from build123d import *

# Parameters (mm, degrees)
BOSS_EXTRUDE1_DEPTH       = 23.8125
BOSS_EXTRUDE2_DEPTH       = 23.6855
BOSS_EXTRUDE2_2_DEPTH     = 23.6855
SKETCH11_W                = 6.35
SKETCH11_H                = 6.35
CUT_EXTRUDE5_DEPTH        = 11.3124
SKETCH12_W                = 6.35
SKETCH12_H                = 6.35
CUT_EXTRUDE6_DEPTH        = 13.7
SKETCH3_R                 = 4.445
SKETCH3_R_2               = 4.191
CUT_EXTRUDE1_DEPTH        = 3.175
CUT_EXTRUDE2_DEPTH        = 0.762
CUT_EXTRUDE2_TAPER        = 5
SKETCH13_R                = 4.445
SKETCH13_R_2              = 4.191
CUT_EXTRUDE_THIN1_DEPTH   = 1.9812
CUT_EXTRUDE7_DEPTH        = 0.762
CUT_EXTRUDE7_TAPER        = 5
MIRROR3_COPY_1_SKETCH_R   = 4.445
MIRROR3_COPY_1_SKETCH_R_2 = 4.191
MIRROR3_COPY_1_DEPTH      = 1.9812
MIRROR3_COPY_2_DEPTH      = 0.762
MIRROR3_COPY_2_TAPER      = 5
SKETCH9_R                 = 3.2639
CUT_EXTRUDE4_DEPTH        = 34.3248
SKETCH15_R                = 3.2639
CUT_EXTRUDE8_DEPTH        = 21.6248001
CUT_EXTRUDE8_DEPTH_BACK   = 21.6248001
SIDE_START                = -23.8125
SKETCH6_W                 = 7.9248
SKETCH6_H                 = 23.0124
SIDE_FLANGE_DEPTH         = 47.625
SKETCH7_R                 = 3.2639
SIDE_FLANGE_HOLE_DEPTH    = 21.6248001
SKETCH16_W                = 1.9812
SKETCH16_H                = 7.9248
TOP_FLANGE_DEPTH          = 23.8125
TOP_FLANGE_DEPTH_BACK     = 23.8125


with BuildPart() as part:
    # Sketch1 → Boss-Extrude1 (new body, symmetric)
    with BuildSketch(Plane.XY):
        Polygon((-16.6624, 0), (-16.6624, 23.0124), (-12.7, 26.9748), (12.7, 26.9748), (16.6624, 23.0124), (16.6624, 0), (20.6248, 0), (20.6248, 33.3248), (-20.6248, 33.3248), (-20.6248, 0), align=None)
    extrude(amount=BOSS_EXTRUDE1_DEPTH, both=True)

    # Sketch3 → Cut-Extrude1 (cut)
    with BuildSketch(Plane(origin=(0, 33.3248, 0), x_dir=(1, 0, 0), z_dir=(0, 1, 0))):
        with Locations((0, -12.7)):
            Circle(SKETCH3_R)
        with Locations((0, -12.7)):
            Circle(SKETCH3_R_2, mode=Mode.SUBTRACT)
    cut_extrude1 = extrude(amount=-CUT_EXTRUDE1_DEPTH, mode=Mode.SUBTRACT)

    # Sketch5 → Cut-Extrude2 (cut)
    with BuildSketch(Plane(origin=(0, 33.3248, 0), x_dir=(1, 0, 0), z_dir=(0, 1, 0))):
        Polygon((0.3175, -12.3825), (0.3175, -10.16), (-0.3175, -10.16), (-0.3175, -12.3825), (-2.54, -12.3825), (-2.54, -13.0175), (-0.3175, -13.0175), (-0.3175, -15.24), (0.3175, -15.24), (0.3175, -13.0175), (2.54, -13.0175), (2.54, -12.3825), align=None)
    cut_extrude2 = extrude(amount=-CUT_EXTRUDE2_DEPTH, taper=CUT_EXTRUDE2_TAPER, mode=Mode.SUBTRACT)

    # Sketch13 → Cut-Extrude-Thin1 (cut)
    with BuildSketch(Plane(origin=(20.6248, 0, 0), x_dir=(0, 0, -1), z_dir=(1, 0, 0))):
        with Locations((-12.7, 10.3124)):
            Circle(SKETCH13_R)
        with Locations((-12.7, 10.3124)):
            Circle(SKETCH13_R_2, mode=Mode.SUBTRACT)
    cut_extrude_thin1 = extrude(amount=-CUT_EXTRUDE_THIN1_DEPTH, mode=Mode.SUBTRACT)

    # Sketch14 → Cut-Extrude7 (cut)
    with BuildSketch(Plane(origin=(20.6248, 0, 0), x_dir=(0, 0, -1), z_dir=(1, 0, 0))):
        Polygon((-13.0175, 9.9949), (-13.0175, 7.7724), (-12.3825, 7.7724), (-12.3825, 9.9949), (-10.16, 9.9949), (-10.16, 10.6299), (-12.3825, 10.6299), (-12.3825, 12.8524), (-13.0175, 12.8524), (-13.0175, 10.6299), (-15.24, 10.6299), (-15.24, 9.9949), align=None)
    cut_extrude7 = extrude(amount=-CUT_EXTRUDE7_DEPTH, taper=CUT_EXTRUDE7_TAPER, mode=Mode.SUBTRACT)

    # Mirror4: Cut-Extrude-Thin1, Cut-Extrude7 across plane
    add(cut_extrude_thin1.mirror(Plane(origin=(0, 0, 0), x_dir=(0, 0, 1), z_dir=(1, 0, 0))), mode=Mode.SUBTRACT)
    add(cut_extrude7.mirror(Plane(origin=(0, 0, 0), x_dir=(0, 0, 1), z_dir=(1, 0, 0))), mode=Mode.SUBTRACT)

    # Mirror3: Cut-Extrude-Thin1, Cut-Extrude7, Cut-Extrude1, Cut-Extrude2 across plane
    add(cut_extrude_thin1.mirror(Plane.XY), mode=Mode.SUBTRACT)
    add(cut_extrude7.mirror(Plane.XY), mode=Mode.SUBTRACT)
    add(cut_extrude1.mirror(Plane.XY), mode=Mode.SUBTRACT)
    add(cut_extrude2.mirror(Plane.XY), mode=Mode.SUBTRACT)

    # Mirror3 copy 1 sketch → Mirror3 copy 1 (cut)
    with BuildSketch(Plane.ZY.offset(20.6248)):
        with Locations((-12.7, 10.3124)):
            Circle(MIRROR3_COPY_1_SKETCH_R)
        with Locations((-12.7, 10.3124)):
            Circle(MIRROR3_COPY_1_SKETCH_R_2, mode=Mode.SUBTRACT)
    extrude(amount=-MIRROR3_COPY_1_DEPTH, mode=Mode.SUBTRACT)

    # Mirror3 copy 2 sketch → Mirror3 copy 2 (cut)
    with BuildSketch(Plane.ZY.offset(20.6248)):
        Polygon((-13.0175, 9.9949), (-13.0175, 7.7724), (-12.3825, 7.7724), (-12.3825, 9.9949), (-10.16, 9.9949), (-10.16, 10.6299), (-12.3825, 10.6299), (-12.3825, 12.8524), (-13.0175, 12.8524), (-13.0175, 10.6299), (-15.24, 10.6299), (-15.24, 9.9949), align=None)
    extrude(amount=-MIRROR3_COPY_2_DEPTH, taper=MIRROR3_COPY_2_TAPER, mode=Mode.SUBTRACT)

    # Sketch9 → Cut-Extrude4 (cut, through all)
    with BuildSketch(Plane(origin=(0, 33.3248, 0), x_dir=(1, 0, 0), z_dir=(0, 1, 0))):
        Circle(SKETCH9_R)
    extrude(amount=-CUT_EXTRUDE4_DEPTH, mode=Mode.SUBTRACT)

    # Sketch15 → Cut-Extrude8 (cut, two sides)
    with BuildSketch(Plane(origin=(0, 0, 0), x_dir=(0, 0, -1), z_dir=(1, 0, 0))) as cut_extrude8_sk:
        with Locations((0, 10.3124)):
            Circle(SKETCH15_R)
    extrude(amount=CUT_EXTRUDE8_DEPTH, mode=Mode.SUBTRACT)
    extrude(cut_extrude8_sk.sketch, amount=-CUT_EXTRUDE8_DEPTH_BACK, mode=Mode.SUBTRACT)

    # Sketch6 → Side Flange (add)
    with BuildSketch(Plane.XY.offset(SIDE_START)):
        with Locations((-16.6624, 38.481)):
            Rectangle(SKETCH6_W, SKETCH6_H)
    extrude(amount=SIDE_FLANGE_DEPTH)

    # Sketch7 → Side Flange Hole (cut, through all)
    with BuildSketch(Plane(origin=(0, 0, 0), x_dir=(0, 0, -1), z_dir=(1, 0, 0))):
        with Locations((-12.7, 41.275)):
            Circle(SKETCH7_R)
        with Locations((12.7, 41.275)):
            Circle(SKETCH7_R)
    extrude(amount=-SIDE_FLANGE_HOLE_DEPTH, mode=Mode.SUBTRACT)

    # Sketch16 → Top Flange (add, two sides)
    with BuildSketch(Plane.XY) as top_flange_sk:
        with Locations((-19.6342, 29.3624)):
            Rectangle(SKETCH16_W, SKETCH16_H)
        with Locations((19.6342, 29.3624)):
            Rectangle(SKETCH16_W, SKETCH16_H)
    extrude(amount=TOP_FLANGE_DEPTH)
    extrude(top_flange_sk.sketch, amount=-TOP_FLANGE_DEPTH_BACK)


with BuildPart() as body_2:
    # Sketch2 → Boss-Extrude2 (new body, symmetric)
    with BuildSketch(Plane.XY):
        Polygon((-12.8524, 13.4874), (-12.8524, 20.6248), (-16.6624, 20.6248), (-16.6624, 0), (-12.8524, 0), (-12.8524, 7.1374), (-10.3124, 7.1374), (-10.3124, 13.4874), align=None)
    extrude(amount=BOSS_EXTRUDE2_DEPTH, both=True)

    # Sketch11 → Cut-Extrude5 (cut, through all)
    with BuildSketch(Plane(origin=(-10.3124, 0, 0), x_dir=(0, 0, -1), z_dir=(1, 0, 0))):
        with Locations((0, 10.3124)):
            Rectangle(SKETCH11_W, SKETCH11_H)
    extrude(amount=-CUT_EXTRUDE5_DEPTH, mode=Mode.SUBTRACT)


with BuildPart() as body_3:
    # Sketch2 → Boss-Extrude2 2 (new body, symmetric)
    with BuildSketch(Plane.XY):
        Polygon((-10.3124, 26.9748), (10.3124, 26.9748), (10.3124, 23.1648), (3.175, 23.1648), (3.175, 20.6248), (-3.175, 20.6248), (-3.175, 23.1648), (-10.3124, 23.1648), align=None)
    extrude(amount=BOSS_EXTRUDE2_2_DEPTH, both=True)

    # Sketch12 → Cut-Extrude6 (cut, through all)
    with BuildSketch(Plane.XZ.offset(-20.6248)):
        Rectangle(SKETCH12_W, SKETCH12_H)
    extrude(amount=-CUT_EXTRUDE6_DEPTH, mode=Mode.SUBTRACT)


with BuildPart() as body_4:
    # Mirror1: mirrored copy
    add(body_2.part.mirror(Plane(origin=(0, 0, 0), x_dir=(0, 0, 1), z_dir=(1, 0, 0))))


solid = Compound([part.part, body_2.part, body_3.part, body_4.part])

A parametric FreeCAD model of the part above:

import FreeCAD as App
import Part
import Sketcher

V = App.Vector
Q = App.Units.Quantity

doc = App.newDocument("Part")
body = doc.addObject("PartDesign::Body", "Body")

sketch1 = body.newObject("Sketcher::SketchObject", "Sketch")
sketch1.AttachmentSupport = (doc.getObject("XY_Plane"), [""])
sketch1.MapMode = "FlatFace"
sketch1.addGeometry([
    Part.LineSegment(V(-16.6624, 0, 0), V(-16.6624, 23.0124, 0)),
    Part.LineSegment(V(-16.6624, 23.0124, 0), V(-12.7, 26.9748, 0)),
    Part.LineSegment(V(-12.7, 26.9748, 0), V(12.7, 26.9748, 0)),
    Part.LineSegment(V(12.7, 26.9748, 0), V(16.6624, 23.0124, 0)),
    Part.LineSegment(V(16.6624, 23.0124, 0), V(16.6624, 0, 0)),
    Part.LineSegment(V(16.6624, 0, 0), V(20.6248, 0, 0)),
    Part.LineSegment(V(20.6248, 0, 0), V(20.6248, 33.3248, 0)),
    Part.LineSegment(V(20.6248, 33.3248, 0), V(-20.6248, 33.3248, 0)),
    Part.LineSegment(V(-20.6248, 33.3248, 0), V(-20.6248, 0, 0)),
    Part.LineSegment(V(-20.6248, 0, 0), V(-16.6624, 0, 0)),
], False)
sketch1.addConstraint([
    Sketcher.Constraint("Coincident", 0, 2, 1, 1),
    Sketcher.Constraint("Coincident", 1, 2, 2, 1),
    Sketcher.Constraint("Coincident", 2, 2, 3, 1),
    Sketcher.Constraint("Coincident", 3, 2, 4, 1),
    Sketcher.Constraint("Coincident", 4, 2, 5, 1),
    Sketcher.Constraint("Coincident", 5, 2, 6, 1),
    Sketcher.Constraint("Coincident", 6, 2, 7, 1),
    Sketcher.Constraint("Coincident", 7, 2, 8, 1),
    Sketcher.Constraint("Coincident", 8, 2, 9, 1),
    Sketcher.Constraint("Coincident", 9, 2, 0, 1),
    Sketcher.Constraint("Vertical", 0),
    Sketcher.Constraint("Horizontal", 2),
    Sketcher.Constraint("Vertical", 4),
    Sketcher.Constraint("Horizontal", 5),
    Sketcher.Constraint("Vertical", 6),
    Sketcher.Constraint("Horizontal", 7),
    Sketcher.Constraint("Vertical", 8),
    Sketcher.Constraint("Horizontal", 9),
    Sketcher.Constraint("Symmetric", 5, 2, 8, 2, -1, 1),
    Sketcher.Constraint("Symmetric", 0, 2, 3, 2, -2),
    Sketcher.Constraint("PointOnObject", 4, 2, -1),
    Sketcher.Constraint("Perpendicular", 1, 3),
    Sketcher.Constraint("Equal", 1, 3),
    Sketcher.Constraint("DistanceX", 2, 1, 2, 2, Q("1 in")),
    Sketcher.Constraint("DistanceX", 5, 1, 5, 2, Q("0.156 in")),
    Sketcher.Constraint("DistanceX", 7, 2, 7, 1, Q("1.624 in")),
    Sketcher.Constraint("DistanceY", 0, 1, 0, 2, Q("0.906 in")),
    Sketcher.Constraint("DistanceY", 6, 1, 6, 2, Q("1.312 in")),
])
pad1 = body.newObject("PartDesign::Pad", "Pad")
pad1.Profile = sketch1
pad1.Length = Q("1.875 in")
pad1.Midplane = True

sketch2 = body.newObject("Sketcher::SketchObject", "Sketch001")
sketch2.AttachmentSupport = (doc.getObject("XZ_Plane"), [""])
sketch2.MapMode = "FlatFace"
sketch2.AttachmentOffset = App.Placement(V(0, 0, -1.312 * 25.4), App.Rotation())
sketch2.addGeometry([
    Part.Circle(V(0, 12.7, 0), V(0, 0, 1), 4.445),
    Part.Circle(V(0, 12.7, 0), V(0, 0, 1), 4.191),
], False)
sketch2.addConstraint([
    Sketcher.Constraint("Coincident", 1, 3, 0, 3),
    Sketcher.Constraint("PointOnObject", 0, 3, -2),
    Sketcher.Constraint("Diameter", 0, Q("0.35 in")),
    Sketcher.Constraint("Diameter", 1, Q("0.33 in")),
    Sketcher.Constraint("DistanceY", -1, 1, 0, 3, Q("0.5 in")),
])
pocket1 = body.newObject("PartDesign::Pocket", "Pocket")
pocket1.Profile = sketch2
pocket1.Length = Q("0.125 in")
pocket1.Reversed = True

sketch3 = body.newObject("Sketcher::SketchObject", "Sketch002")
sketch3.AttachmentSupport = (doc.getObject("XZ_Plane"), [""])
sketch3.MapMode = "FlatFace"
sketch3.AttachmentOffset = App.Placement(V(0, 0, -1.312 * 25.4), App.Rotation())
sketch3.addGeometry([
    Part.LineSegment(V(0.3175, 12.3825, 0), V(0.3175, 10.16, 0)),
    Part.LineSegment(V(0.3175, 10.16, 0), V(-0.3175, 10.16, 0)),
    Part.LineSegment(V(-0.3175, 10.16, 0), V(-0.3175, 12.3825, 0)),
    Part.LineSegment(V(-0.3175, 12.3825, 0), V(-2.54, 12.3825, 0)),
    Part.LineSegment(V(-2.54, 12.3825, 0), V(-2.54, 13.0175, 0)),
    Part.LineSegment(V(-2.54, 13.0175, 0), V(-0.3175, 13.0175, 0)),
    Part.LineSegment(V(-0.3175, 13.0175, 0), V(-0.3175, 15.24, 0)),
    Part.LineSegment(V(-0.3175, 15.24, 0), V(0.3175, 15.24, 0)),
    Part.LineSegment(V(0.3175, 15.24, 0), V(0.3175, 13.0175, 0)),
    Part.LineSegment(V(0.3175, 13.0175, 0), V(2.54, 13.0175, 0)),
    Part.LineSegment(V(2.54, 13.0175, 0), V(2.54, 12.3825, 0)),
    Part.LineSegment(V(2.54, 12.3825, 0), V(0.3175, 12.3825, 0)),
], False)
sketch3.addConstraint([
    Sketcher.Constraint("Coincident", 0, 2, 1, 1),
    Sketcher.Constraint("Coincident", 1, 2, 2, 1),
    Sketcher.Constraint("Coincident", 2, 2, 3, 1),
    Sketcher.Constraint("Coincident", 3, 2, 4, 1),
    Sketcher.Constraint("Coincident", 4, 2, 5, 1),
    Sketcher.Constraint("Coincident", 5, 2, 6, 1),
    Sketcher.Constraint("Coincident", 6, 2, 7, 1),
    Sketcher.Constraint("Coincident", 7, 2, 8, 1),
    Sketcher.Constraint("Coincident", 8, 2, 9, 1),
    Sketcher.Constraint("Coincident", 9, 2, 10, 1),
    Sketcher.Constraint("Coincident", 10, 2, 11, 1),
    Sketcher.Constraint("Coincident", 11, 2, 0, 1),
    Sketcher.Constraint("Vertical", 0),
    Sketcher.Constraint("Horizontal", 1),
    Sketcher.Constraint("Vertical", 2),
    Sketcher.Constraint("Horizontal", 3),
    Sketcher.Constraint("Vertical", 4),
    Sketcher.Constraint("Horizontal", 5),
    Sketcher.Constraint("Vertical", 6),
    Sketcher.Constraint("Horizontal", 7),
    Sketcher.Constraint("Vertical", 8),
    Sketcher.Constraint("Horizontal", 9),
    Sketcher.Constraint("Vertical", 10),
    Sketcher.Constraint("Horizontal", 11),
    Sketcher.Constraint("Symmetric", 5, 2, 8, 2, -2),
    Sketcher.Constraint("Symmetric", 3, 2, 10, 2, -2),
    Sketcher.Constraint("Vertical", 2, 2, 5, 2),
    Sketcher.Constraint("Vertical", 0, 2, 7, 2),
    Sketcher.Constraint("Equal", 11, 0),
    Sketcher.Constraint("Equal", 7, 4),
    Sketcher.Constraint("Equal", 2, 6),
    Sketcher.Constraint("DistanceY", -1, 1, 0, 2, Q("0.4 in")),
    Sketcher.Constraint("DistanceX", 3, 2, -1, 1, Q("0.1 in")),
    Sketcher.Constraint("DistanceX", 1, 2, 1, 1, Q("0.025 in")),
])
pocket2 = body.newObject("PartDesign::Pocket", "Pocket001")
pocket2.Profile = sketch3
pocket2.Length = Q("0.03 in")
pocket2.Reversed = True
pocket2.TaperAngle = -5

sketch4 = body.newObject("Sketcher::SketchObject", "Sketch003")
sketch4.AttachmentSupport = (doc.getObject("YZ_Plane"), [""])
sketch4.MapMode = "FlatFace"
sketch4.AttachmentOffset = App.Placement(V(0, 0, 0.812 * 25.4), App.Rotation())
sketch4.addGeometry([
    Part.Circle(V(10.3124, 12.7, 0), V(0, 0, 1), 4.445),
    Part.Circle(V(10.3124, 12.7, 0), V(0, 0, 1), 4.191),
], False)
sketch4.addConstraint([
    Sketcher.Constraint("Coincident", 1, 3, 0, 3),
    Sketcher.Constraint("Diameter", 0, Q("0.35 in")),
    Sketcher.Constraint("Diameter", 1, Q("0.33 in")),
    Sketcher.Constraint("DistanceY", -1, 1, 0, 3, Q("0.5 in")),
    Sketcher.Constraint("DistanceX", -1, 1, 0, 3, Q("0.406 in")),
])
pocket3 = body.newObject("PartDesign::Pocket", "Pocket002")
pocket3.Profile = sketch4
pocket3.Length = Q("0.078 in")

sketch5 = body.newObject("Sketcher::SketchObject", "Sketch004")
sketch5.AttachmentSupport = (doc.getObject("YZ_Plane"), [""])
sketch5.MapMode = "FlatFace"
sketch5.AttachmentOffset = App.Placement(V(0, 0, 0.812 * 25.4), App.Rotation())
sketch5.addGeometry([
    Part.LineSegment(V(9.9949, 13.0175, 0), V(7.7724, 13.0175, 0)),
    Part.LineSegment(V(7.7724, 13.0175, 0), V(7.7724, 12.3825, 0)),
    Part.LineSegment(V(7.7724, 12.3825, 0), V(9.9949, 12.3825, 0)),
    Part.LineSegment(V(9.9949, 12.3825, 0), V(9.9949, 10.16, 0)),
    Part.LineSegment(V(9.9949, 10.16, 0), V(10.6299, 10.16, 0)),
    Part.LineSegment(V(10.6299, 10.16, 0), V(10.6299, 12.3825, 0)),
    Part.LineSegment(V(10.6299, 12.3825, 0), V(12.8524, 12.3825, 0)),
    Part.LineSegment(V(12.8524, 12.3825, 0), V(12.8524, 13.0175, 0)),
    Part.LineSegment(V(12.8524, 13.0175, 0), V(10.6299, 13.0175, 0)),
    Part.LineSegment(V(10.6299, 13.0175, 0), V(10.6299, 15.24, 0)),
    Part.LineSegment(V(10.6299, 15.24, 0), V(9.9949, 15.24, 0)),
    Part.LineSegment(V(9.9949, 15.24, 0), V(9.9949, 13.0175, 0)),
], False)
sketch5.addConstraint([
    Sketcher.Constraint("Coincident", 0, 2, 1, 1),
    Sketcher.Constraint("Coincident", 1, 2, 2, 1),
    Sketcher.Constraint("Coincident", 2, 2, 3, 1),
    Sketcher.Constraint("Coincident", 3, 2, 4, 1),
    Sketcher.Constraint("Coincident", 4, 2, 5, 1),
    Sketcher.Constraint("Coincident", 5, 2, 6, 1),
    Sketcher.Constraint("Coincident", 6, 2, 7, 1),
    Sketcher.Constraint("Coincident", 7, 2, 8, 1),
    Sketcher.Constraint("Coincident", 8, 2, 9, 1),
    Sketcher.Constraint("Coincident", 9, 2, 10, 1),
    Sketcher.Constraint("Coincident", 10, 2, 11, 1),
    Sketcher.Constraint("Coincident", 11, 2, 0, 1),
    Sketcher.Constraint("Horizontal", 0),
    Sketcher.Constraint("Vertical", 1),
    Sketcher.Constraint("Horizontal", 2),
    Sketcher.Constraint("Vertical", 3),
    Sketcher.Constraint("Horizontal", 4),
    Sketcher.Constraint("Vertical", 5),
    Sketcher.Constraint("Horizontal", 6),
    Sketcher.Constraint("Vertical", 7),
    Sketcher.Constraint("Horizontal", 8),
    Sketcher.Constraint("Vertical", 9),
    Sketcher.Constraint("Horizontal", 10),
    Sketcher.Constraint("Vertical", 11),
    Sketcher.Constraint("Horizontal", 2, 2, 5, 2),
    Sketcher.Constraint("Horizontal", 0, 2, 7, 2),
    Sketcher.Constraint("Vertical", 5, 2, 8, 2),
    Sketcher.Constraint("Vertical", 3, 2, 10, 2),
    Sketcher.Constraint("Equal", 2, 6),
    Sketcher.Constraint("Equal", 10, 1),
    Sketcher.Constraint("Equal", 8, 3),
    Sketcher.Constraint("Equal", 5, 9),
    Sketcher.Constraint("DistanceY", -1, 1, 3, 2, Q("0.4 in")),
    Sketcher.Constraint("DistanceY", -1, 1, 9, 2, Q("0.6 in")),
    Sketcher.Constraint("DistanceX", 4, 1, 4, 2, Q("0.025 in")),
    Sketcher.Constraint("DistanceX", -1, 1, 0, 2, Q("0.306 in")),
])
pocket4 = body.newObject("PartDesign::Pocket", "Pocket003")
pocket4.Profile = sketch5
pocket4.Length = Q("0.03 in")
pocket4.TaperAngle = -5
doc.recompute()

mirrored = body.newObject("PartDesign::Mirrored", "Mirrored")
mirrored.Originals = [pocket3, pocket4]
mirrored.MirrorPlane = (doc.getObject("YZ_Plane"), [""])
body.Tip = mirrored
doc.recompute()

mirrored2 = body.newObject("PartDesign::Mirrored", "Mirrored001")
mirrored2.Originals = [pocket3, pocket4, pocket1, pocket2]
mirrored2.MirrorPlane = (doc.getObject("XY_Plane"), [""])
body.Tip = mirrored2

sketch6 = body.newObject("Sketcher::SketchObject", "Sketch005")
sketch6.AttachmentSupport = (doc.getObject("YZ_Plane"), [""])
sketch6.MapMode = "FlatFace"
sketch6.AttachmentOffset = App.Placement(V(0, 0, -0.812 * 25.4), App.Rotation())
sketch6.addGeometry([
    Part.Circle(V(10.3124, -12.7, 0), V(0, 0, 1), 4.445),
    Part.Circle(V(10.3124, -12.7, 0), V(0, 0, 1), 4.191),
], False)
sketch6.addConstraint([
    Sketcher.Constraint("Coincident", 1, 3, 0, 3),
    Sketcher.Constraint("Diameter", 0, Q("0.35 in")),
    Sketcher.Constraint("Diameter", 1, Q("0.33 in")),
    Sketcher.Constraint("DistanceY", 0, 3, -1, 1, Q("0.5 in")),
    Sketcher.Constraint("DistanceX", -1, 1, 0, 3, Q("0.406 in")),
])
pocket5 = body.newObject("PartDesign::Pocket", "Pocket004")
pocket5.Profile = sketch6
pocket5.Length = Q("0.078 in")
pocket5.Reversed = True

sketch7 = body.newObject("Sketcher::SketchObject", "Sketch006")
sketch7.AttachmentSupport = (doc.getObject("YZ_Plane"), [""])
sketch7.MapMode = "FlatFace"
sketch7.AttachmentOffset = App.Placement(V(0, 0, -0.812 * 25.4), App.Rotation())
sketch7.addGeometry([
    Part.LineSegment(V(9.9949, -13.0175, 0), V(7.7724, -13.0175, 0)),
    Part.LineSegment(V(7.7724, -13.0175, 0), V(7.7724, -12.3825, 0)),
    Part.LineSegment(V(7.7724, -12.3825, 0), V(9.9949, -12.3825, 0)),
    Part.LineSegment(V(9.9949, -12.3825, 0), V(9.9949, -10.16, 0)),
    Part.LineSegment(V(9.9949, -10.16, 0), V(10.6299, -10.16, 0)),
    Part.LineSegment(V(10.6299, -10.16, 0), V(10.6299, -12.3825, 0)),
    Part.LineSegment(V(10.6299, -12.3825, 0), V(12.8524, -12.3825, 0)),
    Part.LineSegment(V(12.8524, -12.3825, 0), V(12.8524, -13.0175, 0)),
    Part.LineSegment(V(12.8524, -13.0175, 0), V(10.6299, -13.0175, 0)),
    Part.LineSegment(V(10.6299, -13.0175, 0), V(10.6299, -15.24, 0)),
    Part.LineSegment(V(10.6299, -15.24, 0), V(9.9949, -15.24, 0)),
    Part.LineSegment(V(9.9949, -15.24, 0), V(9.9949, -13.0175, 0)),
], False)
sketch7.addConstraint([
    Sketcher.Constraint("Coincident", 0, 2, 1, 1),
    Sketcher.Constraint("Coincident", 1, 2, 2, 1),
    Sketcher.Constraint("Coincident", 2, 2, 3, 1),
    Sketcher.Constraint("Coincident", 3, 2, 4, 1),
    Sketcher.Constraint("Coincident", 4, 2, 5, 1),
    Sketcher.Constraint("Coincident", 5, 2, 6, 1),
    Sketcher.Constraint("Coincident", 6, 2, 7, 1),
    Sketcher.Constraint("Coincident", 7, 2, 8, 1),
    Sketcher.Constraint("Coincident", 8, 2, 9, 1),
    Sketcher.Constraint("Coincident", 9, 2, 10, 1),
    Sketcher.Constraint("Coincident", 10, 2, 11, 1),
    Sketcher.Constraint("Coincident", 11, 2, 0, 1),
    Sketcher.Constraint("Horizontal", 0),
    Sketcher.Constraint("Vertical", 1),
    Sketcher.Constraint("Horizontal", 2),
    Sketcher.Constraint("Vertical", 3),
    Sketcher.Constraint("Horizontal", 4),
    Sketcher.Constraint("Vertical", 5),
    Sketcher.Constraint("Horizontal", 6),
    Sketcher.Constraint("Vertical", 7),
    Sketcher.Constraint("Horizontal", 8),
    Sketcher.Constraint("Vertical", 9),
    Sketcher.Constraint("Horizontal", 10),
    Sketcher.Constraint("Vertical", 11),
    Sketcher.Constraint("Horizontal", 2, 2, 5, 2),
    Sketcher.Constraint("Horizontal", 0, 2, 7, 2),
    Sketcher.Constraint("Vertical", 5, 2, 8, 2),
    Sketcher.Constraint("Vertical", 3, 2, 10, 2),
    Sketcher.Constraint("Equal", 2, 6),
    Sketcher.Constraint("Equal", 10, 1),
    Sketcher.Constraint("Equal", 8, 3),
    Sketcher.Constraint("Equal", 5, 9),
    Sketcher.Constraint("DistanceY", 3, 2, -1, 1, Q("0.4 in")),
    Sketcher.Constraint("DistanceY", 9, 2, -1, 1, Q("0.6 in")),
    Sketcher.Constraint("DistanceX", 4, 1, 4, 2, Q("0.025 in")),
    Sketcher.Constraint("DistanceX", -1, 1, 0, 2, Q("0.306 in")),
])
pocket6 = body.newObject("PartDesign::Pocket", "Pocket005")
pocket6.Profile = sketch7
pocket6.Length = Q("0.03 in")
pocket6.Reversed = True
pocket6.TaperAngle = -5

sketch8 = body.newObject("Sketcher::SketchObject", "Sketch007")
sketch8.AttachmentSupport = (doc.getObject("XZ_Plane"), [""])
sketch8.MapMode = "FlatFace"
sketch8.AttachmentOffset = App.Placement(V(0, 0, -1.312 * 25.4), App.Rotation())
sketch8.addGeometry(Part.Circle(V(0, 0, 0), V(0, 0, 1), 3.2639), False)
sketch8.addConstraint([
    Sketcher.Constraint("Coincident", 0, 3, -1, 1),
    Sketcher.Constraint("Diameter", 0, Q("0.257 in")),
])
pocket7 = body.newObject("PartDesign::Pocket", "Pocket006")
pocket7.Profile = sketch8
pocket7.Type = "ThroughAll"
pocket7.Reversed = True

sketch9 = body.newObject("Sketcher::SketchObject", "Sketch008")
sketch9.AttachmentSupport = (doc.getObject("YZ_Plane"), [""])
sketch9.MapMode = "FlatFace"
sketch9.addGeometry(Part.Circle(V(10.3124, 0, 0), V(0, 0, 1), 3.2639), False)
sketch9.addConstraint([
    Sketcher.Constraint("PointOnObject", 0, 3, -1),
    Sketcher.Constraint("Diameter", 0, Q("0.257 in")),
    Sketcher.Constraint("DistanceX", -1, 1, 0, 3, Q("0.406 in")),
])
pocket8 = body.newObject("PartDesign::Pocket", "Pocket007")
pocket8.Profile = sketch9
pocket8.Type = "ThroughAll"
pocket8.Midplane = True

sketch10 = body.newObject("Sketcher::SketchObject", "Sketch009")
sketch10.AttachmentSupport = (doc.getObject("XY_Plane"), [""])
sketch10.MapMode = "FlatFace"
sketch10.AttachmentOffset = App.Placement(V(0, 0, -0.9375 * 25.4), App.Rotation())
sketch10.addGeometry([
    Part.LineSegment(V(-20.6248, 49.9872, 0), V(-20.6248, 26.9748, 0)),
    Part.LineSegment(V(-20.6248, 26.9748, 0), V(-12.7, 26.9748, 0)),
    Part.LineSegment(V(-12.7, 26.9748, 0), V(-12.7, 49.9872, 0)),
    Part.LineSegment(V(-12.7, 49.9872, 0), V(-20.6248, 49.9872, 0)),
], False)
sketch10.addConstraint([
    Sketcher.Constraint("Coincident", 0, 2, 1, 1),
    Sketcher.Constraint("Coincident", 1, 2, 2, 1),
    Sketcher.Constraint("Coincident", 2, 2, 3, 1),
    Sketcher.Constraint("Coincident", 3, 2, 0, 1),
    Sketcher.Constraint("Vertical", 0),
    Sketcher.Constraint("Horizontal", 1),
    Sketcher.Constraint("Vertical", 2),
    Sketcher.Constraint("Horizontal", 3),
    Sketcher.Constraint("DistanceX", 1, 2, -1, 1, Q("0.5 in")),
    Sketcher.Constraint("DistanceX", 1, 1, 1, 2, Q("0.312 in")),
    Sketcher.Constraint("DistanceY", 0, 2, 0, 1, Q("0.906 in")),
    Sketcher.Constraint("DistanceY", -1, 1, 0, 2, Q("1.062 in")),
])
pad2 = body.newObject("PartDesign::Pad", "Pad001")
pad2.Profile = sketch10
pad2.Length = Q("1.875 in")

sketch11 = body.newObject("Sketcher::SketchObject", "Sketch010")
sketch11.AttachmentSupport = (doc.getObject("YZ_Plane"), [""])
sketch11.MapMode = "FlatFace"
sketch11.addGeometry([
    Part.Circle(V(41.275, 12.7, 0), V(0, 0, 1), 3.2639),
    Part.Circle(V(41.275, -12.7, 0), V(0, 0, 1), 3.2639),
], False)
sketch11.addConstraint([
    Sketcher.Constraint("Equal", 0, 1),
    Sketcher.Constraint("Symmetric", 0, 3, 1, 3, -1),
    Sketcher.Constraint("Diameter", 0, Q("0.257 in")),
    Sketcher.Constraint("DistanceY", 1, 3, 0, 3, Q("1 in")),
    Sketcher.Constraint("DistanceX", -1, 1, 0, 3, Q("1.625 in")),
])
pocket9 = body.newObject("PartDesign::Pocket", "Pocket008")
pocket9.Profile = sketch11
pocket9.Type = "ThroughAll"

sketch12 = body.newObject("Sketcher::SketchObject", "Sketch011")
sketch12.AttachmentSupport = (doc.getObject("XY_Plane"), [""])
sketch12.MapMode = "FlatFace"
sketch12.addGeometry([
    Part.LineSegment(V(-20.6248, 33.3248, 0), V(-20.6248, 25.4, 0)),
    Part.LineSegment(V(-20.6248, 25.4, 0), V(-18.6436, 25.4, 0)),
    Part.LineSegment(V(-18.6436, 25.4, 0), V(-18.6436, 33.3248, 0)),
    Part.LineSegment(V(-18.6436, 33.3248, 0), V(-20.6248, 33.3248, 0)),
    Part.LineSegment(V(18.6436, 33.3248, 0), V(18.6436, 25.4, 0)),
    Part.LineSegment(V(18.6436, 25.4, 0), V(20.6248, 25.4, 0)),
    Part.LineSegment(V(20.6248, 25.4, 0), V(20.6248, 33.3248, 0)),
    Part.LineSegment(V(20.6248, 33.3248, 0), V(18.6436, 33.3248, 0)),
], False)
sketch12.addConstraint([
    Sketcher.Constraint("Coincident", 0, 2, 1, 1),
    Sketcher.Constraint("Coincident", 1, 2, 2, 1),
    Sketcher.Constraint("Coincident", 2, 2, 3, 1),
    Sketcher.Constraint("Coincident", 3, 2, 0, 1),
    Sketcher.Constraint("Coincident", 4, 2, 5, 1),
    Sketcher.Constraint("Coincident", 5, 2, 6, 1),
    Sketcher.Constraint("Coincident", 6, 2, 7, 1),
    Sketcher.Constraint("Coincident", 7, 2, 4, 1),
    Sketcher.Constraint("Vertical", 0),
    Sketcher.Constraint("Horizontal", 1),
    Sketcher.Constraint("Vertical", 2),
    Sketcher.Constraint("Horizontal", 3),
    Sketcher.Constraint("Vertical", 4),
    Sketcher.Constraint("Horizontal", 5),
    Sketcher.Constraint("Vertical", 6),
    Sketcher.Constraint("Horizontal", 7),
    Sketcher.Constraint("Symmetric", 1, 2, 4, 2, -2),
    Sketcher.Constraint("Symmetric", 3, 2, 6, 2, -2),
    Sketcher.Constraint("DistanceY", -1, 1, 0, 2, Q("1 in")),
    Sketcher.Constraint("DistanceX", 1, 1, 1, 2, Q("0.078 in")),
    Sketcher.Constraint("DistanceY", 0, 2, 0, 1, Q("0.312 in")),
    Sketcher.Constraint("DistanceX", 0, 2, -1, 1, Q("0.812 in")),
])
pad3 = body.newObject("PartDesign::Pad", "Pad002")
pad3.Profile = sketch12
pad3.Type = "TwoLengths"
pad3.Length = Q("0.9375 in")
pad3.Length2 = Q("0.9375 in")
body2 = doc.addObject("PartDesign::Body", "Body001")

sketch13 = body2.newObject("Sketcher::SketchObject", "Sketch012")
sketch13.AttachmentSupport = (doc.getObject("XY_Plane001"), [""])
sketch13.MapMode = "FlatFace"
sketch13.addGeometry([
    Part.LineSegment(V(-12.8524, 13.4874, 0), V(-12.8524, 20.6248, 0)),
    Part.LineSegment(V(-12.8524, 20.6248, 0), V(-16.6624, 20.6248, 0)),
    Part.LineSegment(V(-16.6624, 20.6248, 0), V(-16.6624, 0, 0)),
    Part.LineSegment(V(-16.6624, 0, 0), V(-12.8524, 0, 0)),
    Part.LineSegment(V(-12.8524, 0, 0), V(-12.8524, 7.1374, 0)),
    Part.LineSegment(V(-12.8524, 7.1374, 0), V(-10.3124, 7.1374, 0)),
    Part.LineSegment(V(-10.3124, 7.1374, 0), V(-10.3124, 13.4874, 0)),
    Part.LineSegment(V(-10.3124, 13.4874, 0), V(-12.8524, 13.4874, 0)),
], False)
sketch13.addConstraint([
    Sketcher.Constraint("Coincident", 0, 2, 1, 1),
    Sketcher.Constraint("Coincident", 1, 2, 2, 1),
    Sketcher.Constraint("Coincident", 2, 2, 3, 1),
    Sketcher.Constraint("Coincident", 3, 2, 4, 1),
    Sketcher.Constraint("Coincident", 4, 2, 5, 1),
    Sketcher.Constraint("Coincident", 5, 2, 6, 1),
    Sketcher.Constraint("Coincident", 6, 2, 7, 1),
    Sketcher.Constraint("Coincident", 7, 2, 0, 1),
    Sketcher.Constraint("Vertical", 0),
    Sketcher.Constraint("Horizontal", 1),
    Sketcher.Constraint("Vertical", 2),
    Sketcher.Constraint("Horizontal", 3),
    Sketcher.Constraint("Vertical", 4),
    Sketcher.Constraint("Horizontal", 5),
    Sketcher.Constraint("Vertical", 6),
    Sketcher.Constraint("Horizontal", 7),
    Sketcher.Constraint("PointOnObject", 2, 2, -1),
    Sketcher.Constraint("Vertical", 0, 2, 3, 2),
    Sketcher.Constraint("Equal", 0, 4),
    Sketcher.Constraint("DistanceX", 5, 1, 5, 2, Q("0.1 in")),
    Sketcher.Constraint("DistanceX", 1, 2, 1, 1, Q("0.15 in")),
    Sketcher.Constraint("DistanceY", 6, 1, 6, 2, Q("0.25 in")),
    Sketcher.Constraint("DistanceY", 0, 1, 0, 2, Q("0.281 in")),
    Sketcher.Constraint("DistanceX", 0, 2, -1, 1, Q("0.506 in")),
])
pad4 = body2.newObject("PartDesign::Pad", "Pad003")
pad4.Profile = sketch13
pad4.Length = Q("1.865 in")
pad4.Midplane = True

sketch14 = body2.newObject("Sketcher::SketchObject", "Sketch013")
sketch14.AttachmentSupport = (doc.getObject("YZ_Plane001"), [""])
sketch14.MapMode = "FlatFace"
sketch14.AttachmentOffset = App.Placement(V(0, 0, -0.406 * 25.4), App.Rotation())
sketch14.addGeometry([
    Part.LineSegment(V(13.4874, 3.175, 0), V(7.1374, 3.175, 0)),
    Part.LineSegment(V(7.1374, 3.175, 0), V(7.1374, -3.175, 0)),
    Part.LineSegment(V(7.1374, -3.175, 0), V(13.4874, -3.175, 0)),
    Part.LineSegment(V(13.4874, -3.175, 0), V(13.4874, 3.175, 0)),
], False)
sketch14.addConstraint([
    Sketcher.Constraint("Coincident", 0, 2, 1, 1),
    Sketcher.Constraint("Coincident", 1, 2, 2, 1),
    Sketcher.Constraint("Coincident", 2, 2, 3, 1),
    Sketcher.Constraint("Coincident", 3, 2, 0, 1),
    Sketcher.Constraint("Horizontal", 0),
    Sketcher.Constraint("Vertical", 1),
    Sketcher.Constraint("Horizontal", 2),
    Sketcher.Constraint("Vertical", 3),
    Sketcher.Constraint("Equal", 2, 1),
    Sketcher.Constraint("DistanceX", 0, 2, 0, 1, Q("0.25 in")),
    Sketcher.Constraint("DistanceX", -1, 1, 0, 2, Q("0.281 in")),
    Sketcher.Constraint("DistanceY", -1, 1, 0, 2, Q("0.125 in")),
])
pocket10 = body2.newObject("PartDesign::Pocket", "Pocket009")
pocket10.Profile = sketch14
pocket10.Type = "ThroughAll"
body3 = doc.addObject("PartDesign::Body", "Body002")

sketch15 = body3.newObject("Sketcher::SketchObject", "Sketch014")
sketch15.AttachmentSupport = (doc.getObject("XY_Plane002"), [""])
sketch15.MapMode = "FlatFace"
sketch15.addGeometry([
    Part.LineSegment(V(10.3124, 26.9748, 0), V(-10.3124, 26.9748, 0)),
    Part.LineSegment(V(-10.3124, 26.9748, 0), V(-10.3124, 23.1648, 0)),
    Part.LineSegment(V(-10.3124, 23.1648, 0), V(-3.175, 23.1648, 0)),
    Part.LineSegment(V(-3.175, 23.1648, 0), V(-3.175, 20.6248, 0)),
    Part.LineSegment(V(-3.175, 20.6248, 0), V(3.175, 20.6248, 0)),
    Part.LineSegment(V(3.175, 20.6248, 0), V(3.175, 23.1648, 0)),
    Part.LineSegment(V(3.175, 23.1648, 0), V(10.3124, 23.1648, 0)),
    Part.LineSegment(V(10.3124, 23.1648, 0), V(10.3124, 26.9748, 0)),
], False)
sketch15.addConstraint([
    Sketcher.Constraint("Coincident", 0, 2, 1, 1),
    Sketcher.Constraint("Coincident", 1, 2, 2, 1),
    Sketcher.Constraint("Coincident", 2, 2, 3, 1),
    Sketcher.Constraint("Coincident", 3, 2, 4, 1),
    Sketcher.Constraint("Coincident", 4, 2, 5, 1),
    Sketcher.Constraint("Coincident", 5, 2, 6, 1),
    Sketcher.Constraint("Coincident", 6, 2, 7, 1),
    Sketcher.Constraint("Coincident", 7, 2, 0, 1),
    Sketcher.Constraint("Horizontal", 0),
    Sketcher.Constraint("Vertical", 1),
    Sketcher.Constraint("Horizontal", 2),
    Sketcher.Constraint("Vertical", 3),
    Sketcher.Constraint("Horizontal", 4),
    Sketcher.Constraint("Vertical", 5),
    Sketcher.Constraint("Horizontal", 6),
    Sketcher.Constraint("Vertical", 7),
    Sketcher.Constraint("Symmetric", 2, 2, 5, 2, -2),
    Sketcher.Constraint("Equal", 2, 6),
    Sketcher.Constraint("DistanceY", 3, 2, 3, 1, Q("0.1 in")),
    Sketcher.Constraint("DistanceX", 4, 1, 4, 2, Q("0.25 in")),
    Sketcher.Constraint("DistanceY", 1, 2, 1, 1, Q("0.15 in")),
    Sketcher.Constraint("DistanceX", 0, 2, 0, 1, Q("0.812 in")),
    Sketcher.Constraint("DistanceY", -1, 1, 0, 2, Q("1.062 in")),
])
pad5 = body3.newObject("PartDesign::Pad", "Pad004")
pad5.Profile = sketch15
pad5.Length = Q("1.865 in")
pad5.Midplane = True

sketch16 = body3.newObject("Sketcher::SketchObject", "Sketch015")
sketch16.AttachmentSupport = (doc.getObject("XZ_Plane002"), [""])
sketch16.MapMode = "FlatFace"
sketch16.AttachmentOffset = App.Placement(V(0, 0, -0.812 * 25.4), App.Rotation())
sketch16.addGeometry([
    Part.LineSegment(V(-3.175, 3.175, 0), V(-3.175, -3.175, 0)),
    Part.LineSegment(V(-3.175, -3.175, 0), V(3.175, -3.175, 0)),
    Part.LineSegment(V(3.175, -3.175, 0), V(3.175, 3.175, 0)),
    Part.LineSegment(V(3.175, 3.175, 0), V(-3.175, 3.175, 0)),
], False)
sketch16.addConstraint([
    Sketcher.Constraint("Coincident", 0, 2, 1, 1),
    Sketcher.Constraint("Coincident", 1, 2, 2, 1),
    Sketcher.Constraint("Coincident", 2, 2, 3, 1),
    Sketcher.Constraint("Coincident", 3, 2, 0, 1),
    Sketcher.Constraint("Vertical", 0),
    Sketcher.Constraint("Horizontal", 1),
    Sketcher.Constraint("Vertical", 2),
    Sketcher.Constraint("Horizontal", 3),
    Sketcher.Constraint("Symmetric", 0, 2, 2, 2, -1, 1),
    Sketcher.Constraint("Equal", 3, 0),
    Sketcher.Constraint("DistanceX", 1, 1, 1, 2, Q("0.25 in")),
])
pocket11 = body3.newObject("PartDesign::Pocket", "Pocket010")
pocket11.Profile = sketch16
pocket11.Type = "ThroughAll"
body4 = doc.addObject("PartDesign::Body", "Body003")
doc.recompute()

mirroring = doc.addObject("Part::Mirroring", "Mirroring")
mirroring.Source = body2
mirroring.Base = V(0, 0, 0)
mirroring.Normal = V(1, 0, 0)
body4.BaseFeature = mirroring
doc.recompute()
mirroring.Visibility = False

doc.recompute()
